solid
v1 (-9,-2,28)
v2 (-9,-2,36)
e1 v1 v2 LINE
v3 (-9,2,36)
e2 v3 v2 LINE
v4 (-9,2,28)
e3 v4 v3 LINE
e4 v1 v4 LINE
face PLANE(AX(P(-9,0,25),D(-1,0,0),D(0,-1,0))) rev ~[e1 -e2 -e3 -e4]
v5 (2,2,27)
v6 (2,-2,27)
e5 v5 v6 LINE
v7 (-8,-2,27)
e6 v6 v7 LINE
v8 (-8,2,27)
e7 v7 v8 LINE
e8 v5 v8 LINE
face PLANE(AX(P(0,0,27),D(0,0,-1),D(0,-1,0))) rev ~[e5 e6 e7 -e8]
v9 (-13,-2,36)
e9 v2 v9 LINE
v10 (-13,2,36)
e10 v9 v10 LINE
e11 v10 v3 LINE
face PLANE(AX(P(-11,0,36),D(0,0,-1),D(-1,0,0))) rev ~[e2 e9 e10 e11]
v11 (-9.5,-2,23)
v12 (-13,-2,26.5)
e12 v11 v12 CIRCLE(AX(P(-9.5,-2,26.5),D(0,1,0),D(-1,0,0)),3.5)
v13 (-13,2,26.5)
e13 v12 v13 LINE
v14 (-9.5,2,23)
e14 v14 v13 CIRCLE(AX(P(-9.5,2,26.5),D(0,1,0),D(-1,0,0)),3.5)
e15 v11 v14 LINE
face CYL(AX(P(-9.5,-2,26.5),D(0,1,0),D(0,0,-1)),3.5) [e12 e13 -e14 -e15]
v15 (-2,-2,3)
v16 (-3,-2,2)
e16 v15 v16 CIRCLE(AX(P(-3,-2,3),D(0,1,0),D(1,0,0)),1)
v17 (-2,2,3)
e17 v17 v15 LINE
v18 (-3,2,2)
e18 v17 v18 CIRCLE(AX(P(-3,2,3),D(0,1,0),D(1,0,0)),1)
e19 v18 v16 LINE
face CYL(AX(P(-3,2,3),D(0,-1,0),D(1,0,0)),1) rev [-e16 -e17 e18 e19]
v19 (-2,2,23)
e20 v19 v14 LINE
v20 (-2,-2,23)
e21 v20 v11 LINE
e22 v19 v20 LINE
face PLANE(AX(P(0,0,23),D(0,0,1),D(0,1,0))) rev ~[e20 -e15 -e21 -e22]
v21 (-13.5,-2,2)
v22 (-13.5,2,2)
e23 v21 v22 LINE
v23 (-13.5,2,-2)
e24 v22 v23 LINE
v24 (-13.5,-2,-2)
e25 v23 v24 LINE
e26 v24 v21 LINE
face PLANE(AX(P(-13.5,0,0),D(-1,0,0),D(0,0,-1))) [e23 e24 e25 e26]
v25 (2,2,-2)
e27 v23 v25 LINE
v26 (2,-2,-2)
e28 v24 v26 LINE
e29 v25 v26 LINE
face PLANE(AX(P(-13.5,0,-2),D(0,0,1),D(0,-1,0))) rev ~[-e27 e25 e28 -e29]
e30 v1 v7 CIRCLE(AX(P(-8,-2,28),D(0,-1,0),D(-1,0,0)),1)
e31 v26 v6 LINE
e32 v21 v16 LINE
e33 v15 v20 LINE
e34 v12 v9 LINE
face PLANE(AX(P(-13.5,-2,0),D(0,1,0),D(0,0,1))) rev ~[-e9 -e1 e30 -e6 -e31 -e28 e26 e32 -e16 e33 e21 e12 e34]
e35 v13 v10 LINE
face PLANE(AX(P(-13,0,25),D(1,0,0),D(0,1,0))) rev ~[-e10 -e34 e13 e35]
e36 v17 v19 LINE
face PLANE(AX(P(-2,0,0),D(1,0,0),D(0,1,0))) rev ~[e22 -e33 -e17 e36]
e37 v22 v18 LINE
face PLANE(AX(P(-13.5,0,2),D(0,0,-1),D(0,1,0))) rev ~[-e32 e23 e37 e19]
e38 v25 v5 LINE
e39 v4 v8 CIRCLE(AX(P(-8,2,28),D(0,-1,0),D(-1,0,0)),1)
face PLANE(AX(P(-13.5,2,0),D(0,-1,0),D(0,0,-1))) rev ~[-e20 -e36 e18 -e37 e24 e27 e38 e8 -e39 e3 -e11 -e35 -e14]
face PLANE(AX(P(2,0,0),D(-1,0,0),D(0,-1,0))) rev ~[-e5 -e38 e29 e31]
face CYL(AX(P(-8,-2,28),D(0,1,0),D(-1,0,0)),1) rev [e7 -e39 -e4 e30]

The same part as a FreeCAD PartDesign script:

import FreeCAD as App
import Part
import Sketcher

V = App.Vector
Q = App.Units.Quantity


def edges_at(feature, points):
    """Names of the edges that pass closest to the given points."""
    edges = feature.Shape.Edges
    near = lambda p: min(range(len(edges)), key=lambda i: edges[i].distToShape(Part.Vertex(*p))[0])
    return sorted({f"Edge{near(p) + 1}" for p in points})


def add_polygon(sketch, points):
    """Adds a closed chain of lines whose ends are joined by coincident constraints."""
    first, n = sketch.GeometryCount, len(points)
    for a, b in zip(points, points[1:] + points[:1]):
        sketch.addGeometry(Part.LineSegment(App.Vector(*a, 0), App.Vector(*b, 0)), False)
    for i in range(n):
        sketch.addConstraint(Sketcher.Constraint("Coincident", first + i, 2, first + (i + 1) % n, 1))

doc = App.newDocument("Part")
body = doc.addObject("PartDesign::Body", "Body")

# Sketch on YZ plane
sketch1 = body.newObject("Sketcher::SketchObject", "Sketch")
sketch1.AttachmentSupport = (doc.getObject("YZ_Plane"), [""])
sketch1.MapMode = "FlatFace"
sketch1.AttachmentOffset = App.Placement(V(0, 0, -13.5), App.Rotation())
add_polygon(sketch1, [(2, 2), (2, -2), (-2, -2), (-2, 2)])  # lines 0-3
sketch1.addConstraint([
    Sketcher.Constraint("Vertical", 0),
    Sketcher.Constraint("Horizontal", 1),
    Sketcher.Constraint("Vertical", 2),
    Sketcher.Constraint("Horizontal", 3),
    Sketcher.Constraint("Symmetric", 0, 2, 2, 2, -1, 1),
    Sketcher.Constraint("Equal", 3, 0),
    Sketcher.Constraint("DistanceX", 1, 2, 1, 1, Q("4 mm")),
])

# Sketch on XZ plane
sketch2 = body.newObject("Sketcher::SketchObject", "Sketch001")
sketch2.AttachmentSupport = (doc.getObject("XZ_Plane"), [""])
sketch2.MapMode = "FlatFace"
sketch2.addGeometry([
    Part.LineSegment(V(-14, 0, 0), V(0, 0, 0)),
    Part.LineSegment(V(0, 0, 0), V(0, 25, 0)),
    Part.LineSegment(V(0, 25, 0), V(-11, 25, 0)),
    Part.LineSegment(V(-11, 25, 0), V(-11, 36, 0)),
], False)
sketch2.addConstraint([
    Sketcher.Constraint("Coincident", 0, 2, 1, 1),
    Sketcher.Constraint("Coincident", 1, 2, 2, 1),
    Sketcher.Constraint("Coincident", 2, 2, 3, 1),
    Sketcher.Constraint("Horizontal", 0),
    Sketcher.Constraint("Vertical", 1),
    Sketcher.Constraint("Horizontal", 2),
    Sketcher.Constraint("Vertical", 3),
    Sketcher.Constraint("Coincident", 0, 2, -1, 1),
    Sketcher.Constraint("Equal", 2, 3),
    Sketcher.Constraint("DistanceX", 2, 2, 2, 1, Q("11 mm")),
    Sketcher.Constraint("DistanceY", 1, 1, 1, 2, Q("25 mm")),
    Sketcher.Constraint("DistanceX", 0, 1, 0, 2, Q("13.5 mm")),
])
doc.recompute()

additivepipe = body.newObject("PartDesign::AdditivePipe", "AdditivePipe")
additivepipe.Profile = sketch1
additivepipe.Spine = (sketch2, ["Edge1", "Edge2", "Edge3", "Edge4"])
additivepipe.Transition = "Right corner"
doc.recompute()

fillet = body.newObject("PartDesign::Fillet", "Fillet")
fillet.Base = (additivepipe, edges_at(additivepipe, [(-13, 0, 23)]))
fillet.Radius = 3.5
doc.recompute()

fillet2 = body.newObject("PartDesign::Fillet", "Fillet001")
fillet2.Base = (fillet, edges_at(fillet, [(-9, 0, 27), (-2, 0, 2)]))
fillet2.Radius = 1

doc.recompute()
